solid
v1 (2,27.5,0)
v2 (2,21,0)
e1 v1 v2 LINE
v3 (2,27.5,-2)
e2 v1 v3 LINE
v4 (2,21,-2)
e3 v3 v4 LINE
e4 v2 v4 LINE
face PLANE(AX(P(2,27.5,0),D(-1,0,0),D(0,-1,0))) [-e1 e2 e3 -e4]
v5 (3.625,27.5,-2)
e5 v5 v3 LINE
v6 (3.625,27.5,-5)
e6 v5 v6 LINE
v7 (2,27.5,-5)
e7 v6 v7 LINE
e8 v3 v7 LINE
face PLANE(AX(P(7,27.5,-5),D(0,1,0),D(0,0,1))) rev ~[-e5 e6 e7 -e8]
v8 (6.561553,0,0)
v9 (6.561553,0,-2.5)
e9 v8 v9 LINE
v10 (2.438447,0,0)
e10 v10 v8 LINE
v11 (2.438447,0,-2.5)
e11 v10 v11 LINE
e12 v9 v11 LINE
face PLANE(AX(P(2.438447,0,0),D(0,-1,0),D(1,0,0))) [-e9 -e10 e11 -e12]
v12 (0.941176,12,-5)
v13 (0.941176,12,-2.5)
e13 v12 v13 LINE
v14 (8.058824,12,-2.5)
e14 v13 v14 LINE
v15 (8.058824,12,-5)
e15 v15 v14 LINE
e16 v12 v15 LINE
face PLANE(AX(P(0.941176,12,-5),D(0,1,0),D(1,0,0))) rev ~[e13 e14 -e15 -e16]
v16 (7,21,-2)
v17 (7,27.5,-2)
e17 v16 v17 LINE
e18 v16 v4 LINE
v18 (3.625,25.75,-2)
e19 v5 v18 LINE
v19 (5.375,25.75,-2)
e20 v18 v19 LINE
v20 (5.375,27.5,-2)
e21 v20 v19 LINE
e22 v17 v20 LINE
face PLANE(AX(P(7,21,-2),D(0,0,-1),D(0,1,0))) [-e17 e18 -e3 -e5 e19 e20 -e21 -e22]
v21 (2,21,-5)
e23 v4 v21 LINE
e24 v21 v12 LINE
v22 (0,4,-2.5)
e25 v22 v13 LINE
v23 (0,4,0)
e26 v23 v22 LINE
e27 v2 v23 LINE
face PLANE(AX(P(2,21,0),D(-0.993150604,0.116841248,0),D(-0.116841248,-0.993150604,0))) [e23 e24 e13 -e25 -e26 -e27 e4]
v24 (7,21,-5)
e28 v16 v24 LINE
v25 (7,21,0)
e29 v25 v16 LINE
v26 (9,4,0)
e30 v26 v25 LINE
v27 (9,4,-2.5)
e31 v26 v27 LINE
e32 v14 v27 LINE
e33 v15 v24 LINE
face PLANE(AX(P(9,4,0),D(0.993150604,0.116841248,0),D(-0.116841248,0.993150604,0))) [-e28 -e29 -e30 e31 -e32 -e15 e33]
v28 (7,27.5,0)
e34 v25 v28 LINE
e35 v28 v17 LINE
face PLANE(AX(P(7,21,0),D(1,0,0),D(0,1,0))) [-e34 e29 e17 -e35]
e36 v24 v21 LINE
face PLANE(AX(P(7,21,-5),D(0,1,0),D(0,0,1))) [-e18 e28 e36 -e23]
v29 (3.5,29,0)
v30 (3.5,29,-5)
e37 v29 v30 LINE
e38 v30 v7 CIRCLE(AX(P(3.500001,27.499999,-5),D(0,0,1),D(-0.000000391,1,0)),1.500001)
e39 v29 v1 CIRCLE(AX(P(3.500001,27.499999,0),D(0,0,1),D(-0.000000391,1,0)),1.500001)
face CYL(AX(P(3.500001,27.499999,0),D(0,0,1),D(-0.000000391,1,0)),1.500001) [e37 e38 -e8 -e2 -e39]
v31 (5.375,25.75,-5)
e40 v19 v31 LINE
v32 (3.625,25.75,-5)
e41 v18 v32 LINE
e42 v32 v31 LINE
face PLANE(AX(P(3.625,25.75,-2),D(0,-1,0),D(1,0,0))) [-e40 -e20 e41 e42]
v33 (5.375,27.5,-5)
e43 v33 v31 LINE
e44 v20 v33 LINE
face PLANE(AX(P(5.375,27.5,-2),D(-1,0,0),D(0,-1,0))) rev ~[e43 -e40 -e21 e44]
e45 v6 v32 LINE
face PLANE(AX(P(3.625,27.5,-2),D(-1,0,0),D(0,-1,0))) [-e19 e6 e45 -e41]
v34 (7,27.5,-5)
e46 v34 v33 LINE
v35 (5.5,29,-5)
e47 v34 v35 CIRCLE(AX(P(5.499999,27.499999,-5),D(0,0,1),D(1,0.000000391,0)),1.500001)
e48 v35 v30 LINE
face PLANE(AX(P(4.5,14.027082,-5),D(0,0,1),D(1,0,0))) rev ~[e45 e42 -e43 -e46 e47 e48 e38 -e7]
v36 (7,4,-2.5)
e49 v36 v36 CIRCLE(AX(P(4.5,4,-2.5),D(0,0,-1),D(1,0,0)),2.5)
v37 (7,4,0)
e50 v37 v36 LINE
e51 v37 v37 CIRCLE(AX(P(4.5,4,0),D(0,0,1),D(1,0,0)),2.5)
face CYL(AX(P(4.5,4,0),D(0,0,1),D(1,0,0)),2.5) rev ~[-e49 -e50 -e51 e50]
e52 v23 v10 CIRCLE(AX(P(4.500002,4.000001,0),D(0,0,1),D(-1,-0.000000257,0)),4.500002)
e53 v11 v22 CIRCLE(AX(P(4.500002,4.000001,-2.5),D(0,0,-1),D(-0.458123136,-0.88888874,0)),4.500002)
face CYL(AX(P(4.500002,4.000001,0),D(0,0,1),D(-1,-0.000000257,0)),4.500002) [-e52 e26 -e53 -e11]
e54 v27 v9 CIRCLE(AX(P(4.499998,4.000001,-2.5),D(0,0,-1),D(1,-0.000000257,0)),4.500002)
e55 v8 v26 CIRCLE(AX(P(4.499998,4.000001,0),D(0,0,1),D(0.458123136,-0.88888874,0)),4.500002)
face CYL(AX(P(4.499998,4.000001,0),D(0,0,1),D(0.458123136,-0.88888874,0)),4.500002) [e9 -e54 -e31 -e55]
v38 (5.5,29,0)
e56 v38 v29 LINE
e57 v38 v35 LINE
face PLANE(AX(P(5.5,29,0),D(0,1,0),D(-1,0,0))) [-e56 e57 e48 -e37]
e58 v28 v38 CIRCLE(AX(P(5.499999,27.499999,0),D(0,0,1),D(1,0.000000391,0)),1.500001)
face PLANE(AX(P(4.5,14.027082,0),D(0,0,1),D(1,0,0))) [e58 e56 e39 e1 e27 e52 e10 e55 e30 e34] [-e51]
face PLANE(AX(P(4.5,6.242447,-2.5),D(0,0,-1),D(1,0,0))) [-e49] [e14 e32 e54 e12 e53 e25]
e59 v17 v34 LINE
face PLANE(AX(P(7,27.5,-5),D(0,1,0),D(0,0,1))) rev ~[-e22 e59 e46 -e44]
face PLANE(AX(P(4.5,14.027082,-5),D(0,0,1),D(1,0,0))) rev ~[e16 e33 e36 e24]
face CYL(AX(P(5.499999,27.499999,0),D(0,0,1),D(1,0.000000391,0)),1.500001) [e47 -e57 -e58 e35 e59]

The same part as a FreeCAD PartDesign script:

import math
import FreeCAD as App
import Part
import Sketcher
from FreeCAD import Vector
Q = App.Units.Quantity

doc = App.newDocument("Part")
body = doc.addObject("PartDesign::Body", "Body")

# Sketch on XY plane
sketch1 = body.newObject("Sketcher::SketchObject", "Sketch")
sketch1.AttachmentSupport = (doc.getObject("XY_Plane"), [""])
sketch1.MapMode = "FlatFace"
sketch1.addGeometry(Part.ArcOfCircle(Part.Circle(Vector(4.5, 4, 0), Vector(0, 0, 1), 4.5), math.radians(-180), math.radians(-117)), False)
sketch1.addGeometry(Part.LineSegment(Vector(2.4, 0, 0), Vector(6.6, 0, 0)), False)
sketch1.addGeometry(Part.ArcOfCircle(Part.Circle(Vector(4.5, 4, 0), Vector(0, 0, 1), 4.5), math.radians(-63), math.radians(0)), False)
sketch1.addGeometry(Part.LineSegment(Vector(9, 4, 0), Vector(7, 21, 0)), False)
sketch1.addGeometry(Part.LineSegment(Vector(7, 21, 0), Vector(7, 27.5, 0)), False)
sketch1.addGeometry(Part.ArcOfCircle(Part.Circle(Vector(5.5, 27.5, 0), Vector(0, 0, 1), 1.5), math.radians(0), math.radians(90)), False)
sketch1.addGeometry(Part.LineSegment(Vector(5.5, 29, 0), Vector(3.5, 29, 0)), False)
sketch1.addGeometry(Part.ArcOfCircle(Part.Circle(Vector(3.5, 27.5, 0), Vector(0, 0, 1), 1.5), math.radians(90), math.radians(180)), False)
sketch1.addGeometry(Part.LineSegment(Vector(2, 27.5, 0), Vector(2, 21, 0)), False)
sketch1.addGeometry(Part.LineSegment(Vector(2, 21, 0), Vector(0, 4, 0)), False)
sketch1.addGeometry(Part.Circle(Vector(4.5, 4, 0), Vector(0, 0, 1), 2.5), False)
sketch1.addConstraint(Sketcher.Constraint("Coincident", 0, 2, 1, 1))
sketch1.addConstraint(Sketcher.Constraint("Coincident", 1, 2, 2, 1))
sketch1.addConstraint(Sketcher.Constraint("Coincident", 2, 2, 3, 1))
sketch1.addConstraint(Sketcher.Constraint("Coincident", 3, 2, 4, 1))
sketch1.addConstraint(Sketcher.Constraint("Tangent", 4, 2, 5, 1))
sketch1.addConstraint(Sketcher.Constraint("Tangent", 5, 2, 6, 1))
sketch1.addConstraint(Sketcher.Constraint("Tangent", 6, 2, 7, 1))
sketch1.addConstraint(Sketcher.Constraint("Tangent", 7, 2, 8, 1))
sketch1.addConstraint(Sketcher.Constraint("Coincident", 8, 2, 9, 1))
sketch1.addConstraint(Sketcher.Constraint("Coincident", 9, 2, 0, 1))
sketch1.addConstraint(Sketcher.Constraint("Horizontal", 1))
sketch1.addConstraint(Sketcher.Constraint("Vertical", 4))
sketch1.addConstraint(Sketcher.Constraint("Horizontal", 6))
sketch1.addConstraint(Sketcher.Constraint("Vertical", 8))
sketch1.addConstraint(Sketcher.Constraint("Coincident", 2, 3, 0, 3))
sketch1.addConstraint(Sketcher.Constraint("Coincident", 10, 3, 0, 3))
sketch1.addConstraint(Sketcher.Constraint("Equal", 0, 2))
sketch1.addConstraint(Sketcher.Constraint("Equal", 5, 7))
sketch1.addConstraint(Sketcher.Constraint("PointOnObject", 0, 2, -1))
sketch1.addConstraint(Sketcher.Constraint("PointOnObject", 9, 2, -2))
sketch1.addConstraint(Sketcher.Constraint("Horizontal", 10, 3, 2, 2))
sketch1.addConstraint(Sketcher.Constraint("Horizontal", 3, 2, 8, 2))
sketch1.addConstraint(Sketcher.Constraint("Horizontal", 2, 2, 9, 2))
sketch1.addConstraint(Sketcher.Constraint("Equal", 3, 9))
sketch1.addConstraint(Sketcher.Constraint("Diameter", 10, Q("5 mm")))
sketch1.addConstraint(Sketcher.Constraint("Radius", 5, Q("1.500001 mm")))
sketch1.addConstraint(Sketcher.Constraint("DistanceX", 6, 2, 6, 1, Q("2 mm")))
sketch1.addConstraint(Sketcher.Constraint("DistanceY", 4, 1, 4, 2, Q("6.5 mm")))
sketch1.addConstraint(Sketcher.Constraint("DistanceY", -1, 1, 0, 3, Q("4.000001 mm")))
sketch1.addConstraint(Sketcher.Constraint("DistanceX", -1, 1, 2, 2, Q("9 mm")))
sketch1.addConstraint(Sketcher.Constraint("DistanceY", -1, 1, 3, 2, Q("21 mm")))
pad1 = body.newObject("PartDesign::Pad", "Pad")
pad1.Profile = sketch1
pad1.Length = 5
pad1.Reversed = True

# Sketch on YZ plane
sketch2 = body.newObject("Sketcher::SketchObject", "Sketch001")
sketch2.AttachmentSupport = (doc.getObject("YZ_Plane"), [""])
sketch2.MapMode = "FlatFace"
sketch2.AttachmentOffset = App.Placement(Vector(0, 0, 7), App.Rotation())
sketch2.addGeometry(Part.LineSegment(Vector(21, -2, 0), Vector(21, -5, 0)), False)
sketch2.addGeometry(Part.LineSegment(Vector(21, -5, 0), Vector(27.5, -5, 0)), False)
sketch2.addGeometry(Part.LineSegment(Vector(27.5, -5, 0), Vector(27.5, -2, 0)), False)
sketch2.addGeometry(Part.LineSegment(Vector(27.5, -2, 0), Vector(21, -2, 0)), False)
sketch2.addConstraint(Sketcher.Constraint("Coincident", 0, 2, 1, 1))
sketch2.addConstraint(Sketcher.Constraint("Coincident", 1, 2, 2, 1))
sketch2.addConstraint(Sketcher.Constraint("Coincident", 2, 2, 3, 1))
sketch2.addConstraint(Sketcher.Constraint("Coincident", 3, 2, 0, 1))
sketch2.addConstraint(Sketcher.Constraint("Vertical", 0))
sketch2.addConstraint(Sketcher.Constraint("Horizontal", 1))
sketch2.addConstraint(Sketcher.Constraint("Vertical", 2))
sketch2.addConstraint(Sketcher.Constraint("Horizontal", 3))
sketch2.addConstraint(Sketcher.Constraint("DistanceY", 0, 2, 0, 1, Q("3 mm")))
sketch2.addConstraint(Sketcher.Constraint("DistanceX", 1, 1, 1, 2, Q("6.5 mm")))
sketch2.addConstraint(Sketcher.Constraint("DistanceX", -1, 1, 0, 2, Q("21 mm")))
sketch2.addConstraint(Sketcher.Constraint("DistanceY", 0, 2, -1, 1, Q("5 mm")))
pocket1 = body.newObject("PartDesign::Pocket", "Pocket")
pocket1.Profile = sketch2
pocket1.Length = 25

# Sketch on XY plane
sketch3 = body.newObject("Sketcher::SketchObject", "Sketch002")
sketch3.AttachmentSupport = (doc.getObject("XY_Plane"), [""])
sketch3.MapMode = "FlatFace"
sketch3.AttachmentOffset = App.Placement(Vector(0, 0, -2), App.Rotation())
sketch3.addGeometry(Part.LineSegment(Vector(3.6, 25.8, 0), Vector(3.6, 27.5, 0)), False)
sketch3.addGeometry(Part.LineSegment(Vector(3.6, 27.5, 0), Vector(5.4, 27.5, 0)), False)
sketch3.addGeometry(Part.LineSegment(Vector(5.4, 27.5, 0), Vector(5.4, 25.8, 0)), False)
sketch3.addGeometry(Part.LineSegment(Vector(5.4, 25.8, 0), Vector(3.6, 25.8, 0)), False)
sketch3.addConstraint(Sketcher.Constraint("Coincident", 0, 2, 1, 1))
sketch3.addConstraint(Sketcher.Constraint("Coincident", 1, 2, 2, 1))
sketch3.addConstraint(Sketcher.Constraint("Coincident", 2, 2, 3, 1))
sketch3.addConstraint(Sketcher.Constraint("Coincident", 3, 2, 0, 1))
sketch3.addConstraint(Sketcher.Constraint("Vertical", 0))
sketch3.addConstraint(Sketcher.Constraint("Horizontal", 1))
sketch3.addConstraint(Sketcher.Constraint("Vertical", 2))
sketch3.addConstraint(Sketcher.Constraint("Horizontal", 3))
sketch3.addConstraint(Sketcher.Constraint("Equal", 3, 0))
sketch3.addConstraint(Sketcher.Constraint("DistanceX", 1, 1, 1, 2, Q("1.75 mm")))
sketch3.addConstraint(Sketcher.Constraint("DistanceY", -1, 1, 0, 2, Q("27.5 mm")))
sketch3.addConstraint(Sketcher.Constraint("DistanceX", -1, 1, 0, 2, Q("3.625 mm")))
pad2 = body.newObject("PartDesign::Pad", "Pad001")
pad2.Profile = sketch3
pad2.Length = 3
pad2.Reversed = True

# Sketch on XY plane
sketch4 = body.newObject("Sketcher::SketchObject", "Sketch003")
sketch4.AttachmentSupport = (doc.getObject("XY_Plane"), [""])
sketch4.MapMode = "FlatFace"
sketch4.AttachmentOffset = App.Placement(Vector(0, 0, -5), App.Rotation())
sketch4.addGeometry(Part.ArcOfCircle(Part.Circle(Vector(4.5, 4, 0), Vector(0, 0, 1), 4.5), math.radians(-180), math.radians(-117)), False)
sketch4.addGeometry(Part.LineSegment(Vector(0, 4, 0), Vector(0.9, 12, 0)), False)
sketch4.addGeometry(Part.LineSegment(Vector(0.9, 12, 0), Vector(8.1, 12, 0)), False)
sketch4.addGeometry(Part.LineSegment(Vector(8.1, 12, 0), Vector(9, 4, 0)), False)
sketch4.addGeometry(Part.ArcOfCircle(Part.Circle(Vector(4.5, 4, 0), Vector(0, 0, 1), 4.5), math.radians(-63), math.radians(0)), False)
sketch4.addGeometry(Part.LineSegment(Vector(6.6, 0, 0), Vector(2.4, 0, 0)), False)
sketch4.addGeometry(Part.Circle(Vector(4.5, 4, 0), Vector(0, 0, 1), 2.5), False)
sketch4.addConstraint(Sketcher.Constraint("Coincident", 0, 1, 1, 1))
sketch4.addConstraint(Sketcher.Constraint("Coincident", 1, 2, 2, 1))
sketch4.addConstraint(Sketcher.Constraint("Coincident", 2, 2, 3, 1))
sketch4.addConstraint(Sketcher.Constraint("Coincident", 3, 2, 4, 2))
sketch4.addConstraint(Sketcher.Constraint("Coincident", 4, 1, 5, 1))
sketch4.addConstraint(Sketcher.Constraint("Coincident", 5, 2, 0, 2))
sketch4.addConstraint(Sketcher.Constraint("Horizontal", 2))
sketch4.addConstraint(Sketcher.Constraint("Horizontal", 5))
sketch4.addConstraint(Sketcher.Constraint("Coincident", 4, 3, 0, 3))
sketch4.addConstraint(Sketcher.Constraint("Coincident", 6, 3, 0, 3))
sketch4.addConstraint(Sketcher.Constraint("Equal", 0, 4))
sketch4.addConstraint(Sketcher.Constraint("PointOnObject", 0, 1, -2))
sketch4.addConstraint(Sketcher.Constraint("PointOnObject", 4, 1, -1))
sketch4.addConstraint(Sketcher.Constraint("Horizontal", 6, 3, 0, 1))
sketch4.addConstraint(Sketcher.Constraint("Horizontal", 0, 1, 3, 2))
sketch4.addConstraint(Sketcher.Constraint("Equal", 1, 3))
sketch4.addConstraint(Sketcher.Constraint("Diameter", 6, Q("5 mm")))
sketch4.addConstraint(Sketcher.Constraint("DistanceY", -1, 1, 0, 3, Q("4.000001 mm")))
sketch4.addConstraint(Sketcher.Constraint("DistanceY", -1, 1, 1, 2, Q("12 mm")))
sketch4.addConstraint(Sketcher.Constraint("DistanceX", -1, 1, 3, 2, Q("9 mm")))
sketch4.addConstraint(Sketcher.Constraint("DistanceX", 2, 1, 2, 2, Q("7.117648 mm")))
pocket2 = body.newObject("PartDesign::Pocket", "Pocket001")
pocket2.Profile = sketch4
pocket2.Length = 2.5
pocket2.Reversed = True

doc.recompute()
